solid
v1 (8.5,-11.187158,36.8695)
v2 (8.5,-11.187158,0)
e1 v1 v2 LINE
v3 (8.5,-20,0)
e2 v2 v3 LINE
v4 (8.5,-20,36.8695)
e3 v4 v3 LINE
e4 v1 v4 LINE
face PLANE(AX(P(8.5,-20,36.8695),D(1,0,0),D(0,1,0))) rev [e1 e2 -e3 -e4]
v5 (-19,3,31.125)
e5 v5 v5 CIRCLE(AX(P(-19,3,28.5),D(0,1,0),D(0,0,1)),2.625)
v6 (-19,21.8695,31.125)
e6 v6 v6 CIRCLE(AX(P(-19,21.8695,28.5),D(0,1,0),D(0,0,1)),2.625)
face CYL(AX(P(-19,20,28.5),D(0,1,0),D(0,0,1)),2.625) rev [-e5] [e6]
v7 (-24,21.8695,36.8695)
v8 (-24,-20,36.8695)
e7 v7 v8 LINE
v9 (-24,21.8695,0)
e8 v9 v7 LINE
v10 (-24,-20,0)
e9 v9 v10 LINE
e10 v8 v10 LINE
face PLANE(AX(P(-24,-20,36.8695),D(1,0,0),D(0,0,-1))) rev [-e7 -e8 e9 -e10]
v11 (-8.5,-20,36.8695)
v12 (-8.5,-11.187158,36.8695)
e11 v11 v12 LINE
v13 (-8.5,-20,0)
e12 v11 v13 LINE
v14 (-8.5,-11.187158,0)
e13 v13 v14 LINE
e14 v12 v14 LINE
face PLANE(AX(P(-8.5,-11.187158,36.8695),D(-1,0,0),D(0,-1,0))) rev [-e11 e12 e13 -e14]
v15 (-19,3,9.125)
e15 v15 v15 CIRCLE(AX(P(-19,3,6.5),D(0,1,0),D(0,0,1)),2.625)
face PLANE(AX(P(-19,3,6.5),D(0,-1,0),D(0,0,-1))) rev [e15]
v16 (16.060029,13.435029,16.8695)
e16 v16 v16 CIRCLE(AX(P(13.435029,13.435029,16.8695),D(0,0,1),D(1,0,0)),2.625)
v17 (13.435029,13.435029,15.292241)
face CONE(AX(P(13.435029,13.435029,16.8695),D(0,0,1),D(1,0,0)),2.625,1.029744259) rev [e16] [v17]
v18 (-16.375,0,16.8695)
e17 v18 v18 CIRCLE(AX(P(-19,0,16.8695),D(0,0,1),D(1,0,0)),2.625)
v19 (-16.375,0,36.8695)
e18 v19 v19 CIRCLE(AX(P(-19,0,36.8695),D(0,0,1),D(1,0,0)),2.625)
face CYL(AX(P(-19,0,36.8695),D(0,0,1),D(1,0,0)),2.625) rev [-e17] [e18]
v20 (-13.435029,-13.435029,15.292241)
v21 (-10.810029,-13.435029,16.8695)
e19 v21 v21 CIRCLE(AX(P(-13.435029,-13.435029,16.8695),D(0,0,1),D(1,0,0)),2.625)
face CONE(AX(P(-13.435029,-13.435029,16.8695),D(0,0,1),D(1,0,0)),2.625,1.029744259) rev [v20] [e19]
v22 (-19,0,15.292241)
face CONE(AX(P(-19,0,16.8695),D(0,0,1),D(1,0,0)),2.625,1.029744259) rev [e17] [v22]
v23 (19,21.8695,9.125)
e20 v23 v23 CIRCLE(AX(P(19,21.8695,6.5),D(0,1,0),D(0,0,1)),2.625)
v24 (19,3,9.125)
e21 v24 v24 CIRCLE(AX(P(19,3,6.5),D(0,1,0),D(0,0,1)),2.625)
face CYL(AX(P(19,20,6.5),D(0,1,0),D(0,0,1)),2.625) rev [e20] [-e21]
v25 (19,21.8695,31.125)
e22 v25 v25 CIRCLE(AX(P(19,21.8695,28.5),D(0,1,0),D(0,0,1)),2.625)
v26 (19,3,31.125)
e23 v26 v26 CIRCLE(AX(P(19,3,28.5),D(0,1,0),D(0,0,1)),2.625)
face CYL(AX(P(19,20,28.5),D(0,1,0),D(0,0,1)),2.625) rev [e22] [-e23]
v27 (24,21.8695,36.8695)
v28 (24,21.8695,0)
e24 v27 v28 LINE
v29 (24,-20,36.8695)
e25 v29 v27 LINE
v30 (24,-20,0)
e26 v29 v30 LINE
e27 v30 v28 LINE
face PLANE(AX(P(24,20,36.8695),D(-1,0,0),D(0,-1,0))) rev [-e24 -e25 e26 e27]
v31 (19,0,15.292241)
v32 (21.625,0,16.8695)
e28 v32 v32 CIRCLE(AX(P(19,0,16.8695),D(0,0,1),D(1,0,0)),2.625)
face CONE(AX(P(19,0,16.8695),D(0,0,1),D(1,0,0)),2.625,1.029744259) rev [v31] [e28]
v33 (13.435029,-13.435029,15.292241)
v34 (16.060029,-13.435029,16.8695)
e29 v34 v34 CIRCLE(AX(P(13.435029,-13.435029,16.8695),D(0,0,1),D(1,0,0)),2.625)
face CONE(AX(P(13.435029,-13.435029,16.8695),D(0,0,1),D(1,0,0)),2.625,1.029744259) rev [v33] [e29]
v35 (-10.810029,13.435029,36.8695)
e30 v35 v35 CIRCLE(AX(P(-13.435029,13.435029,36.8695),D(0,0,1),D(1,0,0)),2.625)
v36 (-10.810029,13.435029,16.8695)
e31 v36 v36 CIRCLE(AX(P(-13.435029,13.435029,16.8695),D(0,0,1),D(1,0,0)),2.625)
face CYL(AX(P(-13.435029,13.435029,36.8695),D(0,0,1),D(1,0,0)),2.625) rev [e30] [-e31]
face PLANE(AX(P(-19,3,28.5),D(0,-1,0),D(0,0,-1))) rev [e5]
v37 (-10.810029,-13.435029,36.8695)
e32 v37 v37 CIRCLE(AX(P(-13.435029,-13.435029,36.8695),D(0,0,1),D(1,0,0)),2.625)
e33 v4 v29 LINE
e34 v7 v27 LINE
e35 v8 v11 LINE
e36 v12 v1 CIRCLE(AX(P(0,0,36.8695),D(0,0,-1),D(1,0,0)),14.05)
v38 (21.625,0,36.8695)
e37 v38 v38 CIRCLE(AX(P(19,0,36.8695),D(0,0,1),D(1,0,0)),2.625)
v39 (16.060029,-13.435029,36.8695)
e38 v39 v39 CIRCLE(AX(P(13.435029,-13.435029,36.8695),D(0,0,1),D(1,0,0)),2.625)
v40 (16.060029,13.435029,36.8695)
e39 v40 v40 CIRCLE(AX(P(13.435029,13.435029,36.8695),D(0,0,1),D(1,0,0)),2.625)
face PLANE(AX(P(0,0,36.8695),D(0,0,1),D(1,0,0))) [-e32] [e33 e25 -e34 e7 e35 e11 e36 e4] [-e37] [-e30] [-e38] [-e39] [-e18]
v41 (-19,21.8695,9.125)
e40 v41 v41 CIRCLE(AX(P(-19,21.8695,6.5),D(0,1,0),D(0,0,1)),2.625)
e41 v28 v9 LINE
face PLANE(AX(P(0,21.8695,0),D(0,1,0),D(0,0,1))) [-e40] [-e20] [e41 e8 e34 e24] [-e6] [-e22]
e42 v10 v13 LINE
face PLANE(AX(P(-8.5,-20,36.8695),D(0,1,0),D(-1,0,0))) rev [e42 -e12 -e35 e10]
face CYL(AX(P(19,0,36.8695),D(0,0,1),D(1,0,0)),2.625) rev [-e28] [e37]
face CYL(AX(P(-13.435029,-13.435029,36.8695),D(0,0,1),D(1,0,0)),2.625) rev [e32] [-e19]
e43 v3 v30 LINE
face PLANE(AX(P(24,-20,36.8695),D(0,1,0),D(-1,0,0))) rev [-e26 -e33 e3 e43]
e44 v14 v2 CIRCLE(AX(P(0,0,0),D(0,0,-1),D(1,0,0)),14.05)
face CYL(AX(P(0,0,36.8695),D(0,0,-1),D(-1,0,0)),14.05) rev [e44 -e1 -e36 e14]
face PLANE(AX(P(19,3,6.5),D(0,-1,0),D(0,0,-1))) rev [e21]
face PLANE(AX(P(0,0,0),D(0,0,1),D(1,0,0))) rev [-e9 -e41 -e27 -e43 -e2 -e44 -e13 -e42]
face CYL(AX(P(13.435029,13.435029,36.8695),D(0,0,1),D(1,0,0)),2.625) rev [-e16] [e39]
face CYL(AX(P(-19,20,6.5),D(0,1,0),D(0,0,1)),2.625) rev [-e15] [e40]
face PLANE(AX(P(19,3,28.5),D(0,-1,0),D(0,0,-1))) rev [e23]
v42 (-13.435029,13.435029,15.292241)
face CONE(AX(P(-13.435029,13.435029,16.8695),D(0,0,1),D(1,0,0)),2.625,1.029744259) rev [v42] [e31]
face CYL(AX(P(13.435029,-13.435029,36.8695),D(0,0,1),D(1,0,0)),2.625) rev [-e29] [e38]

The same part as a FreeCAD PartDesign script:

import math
import FreeCAD as App
import Part
import Sketcher

V = App.Vector
Q = App.Units.Quantity

doc = App.newDocument("Part")
body = doc.addObject("PartDesign::Body", "Body")

# Sketch on XY plane
sketch1 = doc.addObject("Sketcher::SketchObject", "Sketch")
body.addObject(sketch1)
sketch1.AttachmentSupport = (doc.XY_Plane, [""])
sketch1.MapMode = "FlatFace"
sketch1.addGeometry(Part.LineSegment(V(24, 20, 0), V(-24, 20, 0)), False)
sketch1.addGeometry(Part.LineSegment(V(-24, 20, 0), V(-24, -20, 0)), False)
sketch1.addGeometry(Part.LineSegment(V(-24, -20, 0), V(-8, -20, 0)), False)
sketch1.addGeometry(Part.LineSegment(V(-8, -20, 0), V(-8, -11, 0)), False)
sketch1.addGeometry(Part.ArcOfCircle(Part.Circle(V(0, 0, 0), V(0, 0, 1), 14), math.radians(-53), math.radians(233)), False)
sketch1.addGeometry(Part.LineSegment(V(8, -11, 0), V(8, -20, 0)), False)
sketch1.addGeometry(Part.LineSegment(V(8, -20, 0), V(24, -20, 0)), False)
sketch1.addGeometry(Part.LineSegment(V(24, -20, 0), V(24, 20, 0)), False)
sketch1.addConstraint(Sketcher.Constraint("Coincident", 0, 2, 1, 1))
sketch1.addConstraint(Sketcher.Constraint("Coincident", 1, 2, 2, 1))
sketch1.addConstraint(Sketcher.Constraint("Coincident", 2, 2, 3, 1))
sketch1.addConstraint(Sketcher.Constraint("Coincident", 3, 2, 4, 2))
sketch1.addConstraint(Sketcher.Constraint("Coincident", 4, 1, 5, 1))
sketch1.addConstraint(Sketcher.Constraint("Coincident", 5, 2, 6, 1))
sketch1.addConstraint(Sketcher.Constraint("Coincident", 6, 2, 7, 1))
sketch1.addConstraint(Sketcher.Constraint("Coincident", 7, 2, 0, 1))
sketch1.addConstraint(Sketcher.Constraint("Horizontal", 0))
sketch1.addConstraint(Sketcher.Constraint("Vertical", 1))
sketch1.addConstraint(Sketcher.Constraint("Horizontal", 2))
sketch1.addConstraint(Sketcher.Constraint("Vertical", 3))
sketch1.addConstraint(Sketcher.Constraint("Vertical", 5))
sketch1.addConstraint(Sketcher.Constraint("Horizontal", 6))
sketch1.addConstraint(Sketcher.Constraint("Vertical", 7))
sketch1.addConstraint(Sketcher.Constraint("Coincident", 4, 3, -1, 1))
sketch1.addConstraint(Sketcher.Constraint("Symmetric", 0, 2, 6, 2, -1, 1))
sketch1.addConstraint(Sketcher.Constraint("Symmetric", 2, 2, 5, 2, -2))
sketch1.addConstraint(Sketcher.Constraint("DistanceX", 0, 2, 0, 1, Q("48 mm")))
sketch1.addConstraint(Sketcher.Constraint("DistanceY", 1, 2, 1, 1, Q("40 mm")))
sketch1.addConstraint(Sketcher.Constraint("Radius", 4, Q("14.05 mm")))
sketch1.addConstraint(Sketcher.Constraint("DistanceX", 2, 1, 2, 2, Q("15.5 mm")))
pad1 = doc.addObject("PartDesign::Pad", "Pad")
body.addObject(pad1)
pad1.Profile = sketch1
pad1.Length = 36.8695

# Sketch on XY plane
sketch2 = doc.addObject("Sketcher::SketchObject", "Sketch001")
body.addObject(sketch2)
sketch2.AttachmentSupport = (doc.XY_Plane, [""])
sketch2.MapMode = "FlatFace"
sketch2.AttachmentOffset = App.Placement(V(0, 0, 36.8695), App.Rotation())
sketch2.addGeometry(Part.Circle(V(-19, 0, 0), V(0, 0, 1), 2.6), False)
sketch2.addGeometry(Part.Circle(V(-13.4, -13.4, 0), V(0, 0, 1), 2.6), False)
sketch2.addGeometry(Part.Circle(V(-13.4, 13.4, 0), V(0, 0, 1), 2.6), False)
sketch2.addGeometry(Part.Circle(V(13.4, 13.4, 0), V(0, 0, 1), 2.6), False)
sketch2.addGeometry(Part.Circle(V(19, 0, 0), V(0, 0, 1), 2.6), False)
sketch2.addGeometry(Part.Circle(V(13.4, -13.4, 0), V(0, 0, 1), 2.6), False)
sketch2.addConstraint(Sketcher.Constraint("Equal", 0, 1))
sketch2.addConstraint(Sketcher.Constraint("Equal", 1, 2))
sketch2.addConstraint(Sketcher.Constraint("Equal", 2, 3))
sketch2.addConstraint(Sketcher.Constraint("Equal", 3, 4))
sketch2.addConstraint(Sketcher.Constraint("Equal", 4, 5))
sketch2.addConstraint(Sketcher.Constraint("Symmetric", 1, 3, 3, 3, -1, 1))
sketch2.addConstraint(Sketcher.Constraint("Symmetric", 0, 3, 4, 3, -1, 1))
sketch2.addConstraint(Sketcher.Constraint("Symmetric", 2, 3, 5, 3, -1, 1))
sketch2.addConstraint(Sketcher.Constraint("Symmetric", 2, 3, 3, 3, -2))
sketch2.addConstraint(Sketcher.Constraint("PointOnObject", 0, 3, -1))
sketch2.addConstraint(Sketcher.Constraint("Diameter", 0, Q("5.25 mm")))
sketch2.addConstraint(Sketcher.Constraint("DistanceX", 0, 3, -1, 1, Q("19 mm")))
sketch2.addConstraint(Sketcher.Constraint("DistanceX", 1, 3, -1, 1, Q("13.435029 mm")))
sketch2.addConstraint(Sketcher.Constraint("DistanceY", 1, 3, -1, 1, Q("13.435029 mm")))
doc.recompute()
hole = doc.addObject("PartDesign::Hole", "Hole")
body.addObject(hole)
hole.Profile = sketch2
hole.ThreadType = "None"
hole.Diameter = 5.25
hole.DepthType = "Dimension"
hole.Depth = 20
hole.DrillPoint = "Angled"
hole.DrillPointAngle = 118

# Sketch on XZ plane
sketch3 = doc.addObject("Sketcher::SketchObject", "Sketch002")
body.addObject(sketch3)
sketch3.AttachmentSupport = (doc.XZ_Plane, [""])
sketch3.MapMode = "FlatFace"
sketch3.AttachmentOffset = App.Placement(V(0, 0, -20), App.Rotation())
sketch3.addGeometry(Part.Circle(V(-19, 6.5, 0), V(0, 0, 1), 2.6), False)
sketch3.addGeometry(Part.Circle(V(19, 6.5, 0), V(0, 0, 1), 2.6), False)
sketch3.addGeometry(Part.Circle(V(-19, 28.5, 0), V(0, 0, 1), 2.6), False)
sketch3.addGeometry(Part.Circle(V(19, 28.5, 0), V(0, 0, 1), 2.6), False)
sketch3.addConstraint(Sketcher.Constraint("Equal", 0, 1))
sketch3.addConstraint(Sketcher.Constraint("Equal", 1, 2))
sketch3.addConstraint(Sketcher.Constraint("Equal", 2, 3))
sketch3.addConstraint(Sketcher.Constraint("Symmetric", 0, 3, 1, 3, -2))
sketch3.addConstraint(Sketcher.Constraint("Symmetric", 2, 3, 3, 3, -2))
sketch3.addConstraint(Sketcher.Constraint("Vertical", 0, 3, 2, 3))
sketch3.addConstraint(Sketcher.Constraint("Diameter", 0, Q("5.25 mm")))
sketch3.addConstraint(Sketcher.Constraint("DistanceX", 0, 3, -1, 1, Q("19 mm")))
sketch3.addConstraint(Sketcher.Constraint("DistanceY", 0, 3, 2, 3, Q("22 mm")))
sketch3.addConstraint(Sketcher.Constraint("DistanceY", -1, 1, 0, 3, Q("6.5 mm")))
doc.recompute()
hole2 = doc.addObject("PartDesign::Hole", "Hole001")
body.addObject(hole2)
hole2.Profile = sketch3
hole2.ThreadType = "None"
hole2.Diameter = 5.25
hole2.DepthType = "Dimension"
hole2.Depth = 17
hole2.DrillPoint = "Flat"
hole2.Reversed = True

# Sketch on XZ plane
sketch4 = doc.addObject("Sketcher::SketchObject", "Sketch003")
body.addObject(sketch4)
sketch4.AttachmentSupport = (doc.XZ_Plane, [""])
sketch4.MapMode = "FlatFace"
sketch4.AttachmentOffset = App.Placement(V(0, 0, -20), App.Rotation())
sketch4.addGeometry(Part.LineSegment(V(24, 36.9, 0), V(24, 0, 0)), False)
sketch4.addGeometry(Part.LineSegment(V(24, 0, 0), V(-24, 0, 0)), False)
sketch4.addGeometry(Part.LineSegment(V(-24, 0, 0), V(-24, 36.9, 0)), False)
sketch4.addGeometry(Part.LineSegment(V(-24, 36.9, 0), V(24, 36.9, 0)), False)
sketch4.addGeometry(Part.Circle(V(19, 6.5, 0), V(0, 0, 1), 2.6), False)
sketch4.addGeometry(Part.Circle(V(-19, 6.5, 0), V(0, 0, 1), 2.6), False)
sketch4.addGeometry(Part.Circle(V(19, 28.5, 0), V(0, 0, 1), 2.6), False)
sketch4.addGeometry(Part.Circle(V(-19, 28.5, 0), V(0, 0, 1), 2.6), False)
sketch4.addConstraint(Sketcher.Constraint("Coincident", 0, 2, 1, 1))
sketch4.addConstraint(Sketcher.Constraint("Coincident", 1, 2, 2, 1))
sketch4.addConstraint(Sketcher.Constraint("Coincident", 2, 2, 3, 1))
sketch4.addConstraint(Sketcher.Constraint("Coincident", 3, 2, 0, 1))
sketch4.addConstraint(Sketcher.Constraint("Vertical", 0))
sketch4.addConstraint(Sketcher.Constraint("Horizontal", 1))
sketch4.addConstraint(Sketcher.Constraint("Vertical", 2))
sketch4.addConstraint(Sketcher.Constraint("Horizontal", 3))
sketch4.addConstraint(Sketcher.Constraint("Equal", 4, 5))
sketch4.addConstraint(Sketcher.Constraint("Equal", 5, 6))
sketch4.addConstraint(Sketcher.Constraint("Equal", 6, 7))
sketch4.addConstraint(Sketcher.Constraint("Symmetric", 0, 2, 1, 2, -1, 1))
sketch4.addConstraint(Sketcher.Constraint("Symmetric", 4, 3, 5, 3, -2))
sketch4.addConstraint(Sketcher.Constraint("Symmetric", 6, 3, 7, 3, -2))
sketch4.addConstraint(Sketcher.Constraint("Vertical", 4, 3, 6, 3))
sketch4.addConstraint(Sketcher.Constraint("Diameter", 4, Q("5.25 mm")))
sketch4.addConstraint(Sketcher.Constraint("DistanceX", 1, 2, 1, 1, Q("48 mm")))
sketch4.addConstraint(Sketcher.Constraint("DistanceX", -1, 1, 4, 3, Q("19 mm")))
sketch4.addConstraint(Sketcher.Constraint("DistanceY", 4, 3, 6, 3, Q("22 mm")))
sketch4.addConstraint(Sketcher.Constraint("DistanceY", -1, 1, 4, 3, Q("6.5 mm")))
sketch4.addConstraint(Sketcher.Constraint("DistanceY", 0, 2, 0, 1, Q("36.8695 mm")))
pad2 = doc.addObject("PartDesign::Pad", "Pad001")
body.addObject(pad2)
pad2.Profile = sketch4
pad2.Length = 1.8695
pad2.Reversed = True

doc.recompute()
